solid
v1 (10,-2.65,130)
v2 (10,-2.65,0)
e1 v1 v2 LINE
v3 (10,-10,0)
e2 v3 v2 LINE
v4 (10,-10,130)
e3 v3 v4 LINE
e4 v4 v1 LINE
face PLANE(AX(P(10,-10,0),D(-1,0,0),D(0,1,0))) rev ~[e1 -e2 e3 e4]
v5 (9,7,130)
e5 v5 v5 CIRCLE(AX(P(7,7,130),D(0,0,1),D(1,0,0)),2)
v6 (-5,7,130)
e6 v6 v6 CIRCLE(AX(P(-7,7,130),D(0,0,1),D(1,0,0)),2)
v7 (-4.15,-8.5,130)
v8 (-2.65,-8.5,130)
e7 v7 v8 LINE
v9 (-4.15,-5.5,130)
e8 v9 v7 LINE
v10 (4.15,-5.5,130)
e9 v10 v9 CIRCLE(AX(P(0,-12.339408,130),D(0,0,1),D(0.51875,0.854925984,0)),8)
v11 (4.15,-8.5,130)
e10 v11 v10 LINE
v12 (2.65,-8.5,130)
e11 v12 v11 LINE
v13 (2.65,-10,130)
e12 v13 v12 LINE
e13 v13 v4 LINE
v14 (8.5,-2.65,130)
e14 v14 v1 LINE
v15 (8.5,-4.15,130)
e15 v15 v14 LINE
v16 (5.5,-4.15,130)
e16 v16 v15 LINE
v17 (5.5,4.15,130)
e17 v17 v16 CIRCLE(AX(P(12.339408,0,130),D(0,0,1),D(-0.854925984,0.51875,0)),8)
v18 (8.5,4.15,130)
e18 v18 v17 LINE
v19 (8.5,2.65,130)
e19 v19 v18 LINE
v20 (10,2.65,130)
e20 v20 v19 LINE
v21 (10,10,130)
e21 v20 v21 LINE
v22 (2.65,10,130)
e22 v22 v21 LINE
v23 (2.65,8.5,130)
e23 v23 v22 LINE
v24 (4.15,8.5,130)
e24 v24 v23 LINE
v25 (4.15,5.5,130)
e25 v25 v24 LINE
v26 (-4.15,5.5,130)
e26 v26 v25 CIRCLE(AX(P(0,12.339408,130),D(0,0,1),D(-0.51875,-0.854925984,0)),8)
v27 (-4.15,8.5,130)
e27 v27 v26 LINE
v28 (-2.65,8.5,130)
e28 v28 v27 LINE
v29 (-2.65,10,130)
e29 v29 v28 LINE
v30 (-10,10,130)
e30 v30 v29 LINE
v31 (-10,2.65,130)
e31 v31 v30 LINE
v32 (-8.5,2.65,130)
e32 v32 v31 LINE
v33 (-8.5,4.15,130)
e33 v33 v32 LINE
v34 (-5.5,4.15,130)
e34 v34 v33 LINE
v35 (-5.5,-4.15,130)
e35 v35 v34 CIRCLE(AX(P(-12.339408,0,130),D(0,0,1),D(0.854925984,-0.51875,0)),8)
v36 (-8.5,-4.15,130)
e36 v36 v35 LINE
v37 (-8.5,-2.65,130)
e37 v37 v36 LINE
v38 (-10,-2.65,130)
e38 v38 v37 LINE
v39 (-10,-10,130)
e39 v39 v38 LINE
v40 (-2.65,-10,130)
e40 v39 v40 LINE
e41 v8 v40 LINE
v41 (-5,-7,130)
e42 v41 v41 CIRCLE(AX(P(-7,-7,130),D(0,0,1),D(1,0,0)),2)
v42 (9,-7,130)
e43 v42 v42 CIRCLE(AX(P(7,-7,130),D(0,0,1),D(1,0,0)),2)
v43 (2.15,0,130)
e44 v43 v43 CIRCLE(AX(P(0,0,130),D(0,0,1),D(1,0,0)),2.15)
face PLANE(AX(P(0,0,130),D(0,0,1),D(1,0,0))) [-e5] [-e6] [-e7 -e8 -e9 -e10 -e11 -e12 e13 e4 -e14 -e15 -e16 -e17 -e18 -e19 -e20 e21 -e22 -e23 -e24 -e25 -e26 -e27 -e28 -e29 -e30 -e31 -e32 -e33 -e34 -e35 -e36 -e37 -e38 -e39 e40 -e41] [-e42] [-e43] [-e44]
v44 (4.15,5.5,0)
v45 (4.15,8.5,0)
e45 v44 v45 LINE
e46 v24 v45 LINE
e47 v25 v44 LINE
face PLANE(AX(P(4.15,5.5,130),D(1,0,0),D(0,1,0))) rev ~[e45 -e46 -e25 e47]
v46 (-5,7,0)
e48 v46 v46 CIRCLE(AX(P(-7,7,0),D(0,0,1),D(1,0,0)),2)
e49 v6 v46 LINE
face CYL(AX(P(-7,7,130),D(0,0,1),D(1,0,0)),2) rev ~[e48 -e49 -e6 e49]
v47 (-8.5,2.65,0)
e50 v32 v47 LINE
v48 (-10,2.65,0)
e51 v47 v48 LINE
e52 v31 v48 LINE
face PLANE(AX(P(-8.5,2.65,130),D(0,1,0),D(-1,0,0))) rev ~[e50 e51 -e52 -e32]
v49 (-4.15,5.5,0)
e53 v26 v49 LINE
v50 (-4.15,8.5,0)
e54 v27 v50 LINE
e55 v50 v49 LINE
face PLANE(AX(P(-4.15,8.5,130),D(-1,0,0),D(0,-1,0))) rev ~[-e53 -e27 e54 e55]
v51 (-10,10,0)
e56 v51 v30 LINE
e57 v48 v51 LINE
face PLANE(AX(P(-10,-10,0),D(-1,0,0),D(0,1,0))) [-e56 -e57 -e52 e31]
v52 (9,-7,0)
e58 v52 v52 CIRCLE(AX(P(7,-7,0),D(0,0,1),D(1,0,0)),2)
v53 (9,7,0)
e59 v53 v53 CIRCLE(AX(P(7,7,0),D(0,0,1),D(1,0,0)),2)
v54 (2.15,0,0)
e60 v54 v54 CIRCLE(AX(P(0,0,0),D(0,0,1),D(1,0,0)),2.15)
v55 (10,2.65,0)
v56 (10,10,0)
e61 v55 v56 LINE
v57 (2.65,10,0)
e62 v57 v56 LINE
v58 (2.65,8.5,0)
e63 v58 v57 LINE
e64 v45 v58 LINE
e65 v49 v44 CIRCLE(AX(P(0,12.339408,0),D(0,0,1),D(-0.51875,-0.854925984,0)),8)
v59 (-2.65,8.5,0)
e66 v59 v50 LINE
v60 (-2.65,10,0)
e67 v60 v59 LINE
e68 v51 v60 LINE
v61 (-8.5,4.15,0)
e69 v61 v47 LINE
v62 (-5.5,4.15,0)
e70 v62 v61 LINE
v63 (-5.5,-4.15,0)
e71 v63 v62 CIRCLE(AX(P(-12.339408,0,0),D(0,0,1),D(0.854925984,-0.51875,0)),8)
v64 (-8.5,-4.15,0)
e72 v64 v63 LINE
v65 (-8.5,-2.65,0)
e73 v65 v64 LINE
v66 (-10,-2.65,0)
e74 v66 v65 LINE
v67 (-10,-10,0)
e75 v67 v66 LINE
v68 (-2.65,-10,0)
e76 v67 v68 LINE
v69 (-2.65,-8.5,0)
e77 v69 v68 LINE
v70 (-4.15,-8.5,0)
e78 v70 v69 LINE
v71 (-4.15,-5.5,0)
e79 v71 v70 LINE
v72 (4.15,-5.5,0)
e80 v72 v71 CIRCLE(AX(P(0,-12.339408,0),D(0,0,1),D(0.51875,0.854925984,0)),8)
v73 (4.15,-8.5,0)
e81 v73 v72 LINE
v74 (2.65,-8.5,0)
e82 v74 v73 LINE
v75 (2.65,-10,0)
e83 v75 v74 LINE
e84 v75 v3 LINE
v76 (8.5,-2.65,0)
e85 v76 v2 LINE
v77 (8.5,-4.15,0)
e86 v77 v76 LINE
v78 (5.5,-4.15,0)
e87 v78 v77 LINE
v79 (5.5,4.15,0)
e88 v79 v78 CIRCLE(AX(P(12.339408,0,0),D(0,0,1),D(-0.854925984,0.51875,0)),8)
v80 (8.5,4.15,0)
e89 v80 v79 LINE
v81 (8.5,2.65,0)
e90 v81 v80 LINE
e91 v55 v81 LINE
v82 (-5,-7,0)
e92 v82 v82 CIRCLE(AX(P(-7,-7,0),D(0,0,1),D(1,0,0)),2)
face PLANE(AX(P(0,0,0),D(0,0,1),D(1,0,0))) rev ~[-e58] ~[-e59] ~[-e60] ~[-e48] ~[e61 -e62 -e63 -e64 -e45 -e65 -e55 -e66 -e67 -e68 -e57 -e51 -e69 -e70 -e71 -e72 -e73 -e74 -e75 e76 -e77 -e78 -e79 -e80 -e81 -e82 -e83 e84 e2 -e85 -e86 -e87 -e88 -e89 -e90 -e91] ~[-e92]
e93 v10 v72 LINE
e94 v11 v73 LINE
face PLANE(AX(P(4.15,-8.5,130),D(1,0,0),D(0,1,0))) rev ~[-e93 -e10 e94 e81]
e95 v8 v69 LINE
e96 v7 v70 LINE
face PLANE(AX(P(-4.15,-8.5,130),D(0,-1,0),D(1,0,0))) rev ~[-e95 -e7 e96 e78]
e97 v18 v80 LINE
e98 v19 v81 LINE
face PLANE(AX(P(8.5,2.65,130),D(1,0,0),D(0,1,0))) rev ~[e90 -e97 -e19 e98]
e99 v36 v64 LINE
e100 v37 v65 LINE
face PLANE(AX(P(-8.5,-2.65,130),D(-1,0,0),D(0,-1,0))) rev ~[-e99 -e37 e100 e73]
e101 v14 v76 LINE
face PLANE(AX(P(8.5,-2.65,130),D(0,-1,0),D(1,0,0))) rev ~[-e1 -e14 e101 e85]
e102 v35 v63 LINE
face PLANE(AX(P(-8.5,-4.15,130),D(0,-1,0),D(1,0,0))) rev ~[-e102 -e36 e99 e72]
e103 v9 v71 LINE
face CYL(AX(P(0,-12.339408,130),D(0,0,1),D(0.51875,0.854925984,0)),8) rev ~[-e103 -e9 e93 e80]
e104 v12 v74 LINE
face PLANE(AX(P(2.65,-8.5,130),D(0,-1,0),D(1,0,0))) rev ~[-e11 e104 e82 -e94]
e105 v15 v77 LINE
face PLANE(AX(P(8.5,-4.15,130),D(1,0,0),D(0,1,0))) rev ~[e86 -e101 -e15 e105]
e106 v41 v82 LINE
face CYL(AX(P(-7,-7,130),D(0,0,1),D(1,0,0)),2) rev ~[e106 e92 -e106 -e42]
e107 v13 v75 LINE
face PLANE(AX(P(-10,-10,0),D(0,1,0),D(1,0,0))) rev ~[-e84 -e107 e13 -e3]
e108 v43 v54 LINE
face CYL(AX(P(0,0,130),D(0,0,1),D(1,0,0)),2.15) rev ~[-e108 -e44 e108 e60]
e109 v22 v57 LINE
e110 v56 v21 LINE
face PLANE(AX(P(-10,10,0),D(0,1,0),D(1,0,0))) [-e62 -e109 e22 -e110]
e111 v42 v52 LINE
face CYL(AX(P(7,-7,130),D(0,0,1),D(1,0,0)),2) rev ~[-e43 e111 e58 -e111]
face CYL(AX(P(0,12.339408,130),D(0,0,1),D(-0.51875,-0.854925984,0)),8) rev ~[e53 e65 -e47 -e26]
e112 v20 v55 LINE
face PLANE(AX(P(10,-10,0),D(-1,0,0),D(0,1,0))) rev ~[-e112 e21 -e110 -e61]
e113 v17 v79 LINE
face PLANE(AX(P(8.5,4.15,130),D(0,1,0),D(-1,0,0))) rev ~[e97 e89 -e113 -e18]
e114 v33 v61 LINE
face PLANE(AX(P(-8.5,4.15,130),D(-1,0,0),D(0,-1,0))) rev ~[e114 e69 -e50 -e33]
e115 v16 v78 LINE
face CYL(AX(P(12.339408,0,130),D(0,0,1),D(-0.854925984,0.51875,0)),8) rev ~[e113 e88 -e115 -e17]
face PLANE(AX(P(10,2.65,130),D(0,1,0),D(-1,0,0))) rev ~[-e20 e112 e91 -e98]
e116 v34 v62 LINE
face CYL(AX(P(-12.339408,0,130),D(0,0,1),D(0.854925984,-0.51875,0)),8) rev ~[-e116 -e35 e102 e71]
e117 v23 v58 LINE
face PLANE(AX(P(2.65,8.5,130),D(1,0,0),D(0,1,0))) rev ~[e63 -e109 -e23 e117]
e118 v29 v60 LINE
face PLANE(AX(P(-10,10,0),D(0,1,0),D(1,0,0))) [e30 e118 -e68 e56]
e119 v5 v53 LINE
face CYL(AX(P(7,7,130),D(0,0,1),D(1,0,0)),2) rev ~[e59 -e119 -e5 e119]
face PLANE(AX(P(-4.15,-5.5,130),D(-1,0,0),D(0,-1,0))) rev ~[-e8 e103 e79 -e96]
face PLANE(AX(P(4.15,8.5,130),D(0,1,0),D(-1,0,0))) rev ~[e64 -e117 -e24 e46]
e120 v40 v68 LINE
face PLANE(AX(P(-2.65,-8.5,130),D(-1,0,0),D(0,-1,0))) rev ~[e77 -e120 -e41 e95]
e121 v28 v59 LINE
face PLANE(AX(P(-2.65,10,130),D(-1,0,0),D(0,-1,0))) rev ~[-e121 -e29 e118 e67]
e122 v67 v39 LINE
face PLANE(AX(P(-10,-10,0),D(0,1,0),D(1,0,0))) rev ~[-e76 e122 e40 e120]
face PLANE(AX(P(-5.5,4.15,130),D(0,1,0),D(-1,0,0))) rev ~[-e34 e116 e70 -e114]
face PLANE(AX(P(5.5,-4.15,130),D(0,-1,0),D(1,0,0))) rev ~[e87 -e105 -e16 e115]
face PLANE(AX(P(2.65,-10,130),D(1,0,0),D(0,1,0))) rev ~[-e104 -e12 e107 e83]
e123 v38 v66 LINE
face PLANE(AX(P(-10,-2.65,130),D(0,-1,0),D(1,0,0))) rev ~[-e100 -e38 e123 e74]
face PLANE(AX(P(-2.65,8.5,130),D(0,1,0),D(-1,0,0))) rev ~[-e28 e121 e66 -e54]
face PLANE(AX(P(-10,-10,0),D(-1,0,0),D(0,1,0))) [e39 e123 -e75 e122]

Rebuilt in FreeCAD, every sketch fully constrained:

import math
import FreeCAD as App
import Part
import Sketcher

V = App.Vector
Q = App.Units.Quantity


def add_polygon(sketch, points):
    """Adds a closed chain of lines whose ends are joined by coincident constraints."""
    first, n = sketch.GeometryCount, len(points)
    for a, b in zip(points, points[1:] + points[:1]):
        sketch.addGeometry(Part.LineSegment(App.Vector(*a, 0), App.Vector(*b, 0)), False)
    for i in range(n):
        sketch.addConstraint(Sketcher.Constraint("Coincident", first + i, 2, first + (i + 1) % n, 1))

doc = App.newDocument("Part")
body = doc.addObject("PartDesign::Body", "Body")

# Sketch on XY plane
sketch1 = body.newObject("Sketcher::SketchObject", "Sketch")
sketch1.AttachmentSupport = (doc.getObject("XY_Plane"), [""])
sketch1.MapMode = "FlatFace"
add_polygon(sketch1, [(-10, 10), (-10, -10), (10, -10), (10, 10)])  # lines 0-3
sketch1.addConstraint(Sketcher.Constraint("Vertical", 0))
sketch1.addConstraint(Sketcher.Constraint("Horizontal", 1))
sketch1.addConstraint(Sketcher.Constraint("Vertical", 2))
sketch1.addConstraint(Sketcher.Constraint("Horizontal", 3))
sketch1.addConstraint(Sketcher.Constraint("Symmetric", 0, 2, 2, 2, -1, 1))
sketch1.addConstraint(Sketcher.Constraint("Equal", 3, 0))
sketch1.addConstraint(Sketcher.Constraint("DistanceX", 1, 1, 1, 2, Q("20 mm")))
pad1 = body.newObject("PartDesign::Pad", "Pad")
pad1.Profile = sketch1
pad1.Length = 130

# Sketch on XY plane
sketch2 = body.newObject("Sketcher::SketchObject", "Sketch001")
sketch2.AttachmentSupport = (doc.getObject("XY_Plane"), [""])
sketch2.MapMode = "FlatFace"
sketch2.AttachmentOffset = App.Placement(V(0, 0, 130), App.Rotation())
sketch2.addGeometry(Part.Circle(V(0, 0, 0), V(0, 0, 1), 2.1), False)
sketch2.addGeometry(Part.Circle(V(-7, 7, 0), V(0, 0, 1), 2), False)
sketch2.addGeometry(Part.Circle(V(7, 7, 0), V(0, 0, 1), 2), False)
sketch2.addGeometry(Part.Circle(V(7, -7, 0), V(0, 0, 1), 2), False)
sketch2.addGeometry(Part.Circle(V(-7, -7, 0), V(0, 0, 1), 2), False)
sketch2.addGeometry(Part.LineSegment(V(-2.6, 10, 0), V(-2.6, 8.5, 0)), False)
sketch2.addGeometry(Part.LineSegment(V(-2.6, 8.5, 0), V(-4.2, 8.5, 0)), False)
sketch2.addGeometry(Part.LineSegment(V(-4.2, 8.5, 0), V(-4.2, 5.5, 0)), False)
sketch2.addGeometry(Part.ArcOfCircle(Part.Circle(V(0, 12.3, 0), V(0, 0, 1), 8), math.radians(-121), math.radians(-59)), False)
sketch2.addGeometry(Part.LineSegment(V(4.2, 5.5, 0), V(4.2, 8.5, 0)), False)
sketch2.addGeometry(Part.LineSegment(V(4.2, 8.5, 0), V(2.6, 8.5, 0)), False)
sketch2.addGeometry(Part.LineSegment(V(2.6, 8.5, 0), V(2.6, 10, 0)), False)
sketch2.addGeometry(Part.LineSegment(V(2.6, 10, 0), V(-2.6, 10, 0)), False)
sketch2.addGeometry(Part.LineSegment(V(10, 2.6, 0), V(8.5, 2.6, 0)), False)
sketch2.addGeometry(Part.LineSegment(V(8.5, 2.6, 0), V(8.5, 4.2, 0)), False)
sketch2.addGeometry(Part.LineSegment(V(8.5, 4.2, 0), V(5.5, 4.2, 0)), False)
sketch2.addGeometry(Part.ArcOfCircle(Part.Circle(V(12.3, 0, 0), V(0, 0, 1), 8), math.radians(149), math.radians(211)), False)
sketch2.addGeometry(Part.LineSegment(V(5.5, -4.2, 0), V(8.5, -4.2, 0)), False)
sketch2.addGeometry(Part.LineSegment(V(8.5, -4.2, 0), V(8.5, -2.6, 0)), False)
sketch2.addGeometry(Part.LineSegment(V(8.5, -2.6, 0), V(10, -2.6, 0)), False)
sketch2.addGeometry(Part.LineSegment(V(10, -2.6, 0), V(10, 2.6, 0)), False)
sketch2.addGeometry(Part.LineSegment(V(2.6, -10, 0), V(2.6, -8.5, 0)), False)
sketch2.addGeometry(Part.LineSegment(V(2.6, -8.5, 0), V(4.2, -8.5, 0)), False)
sketch2.addGeometry(Part.LineSegment(V(4.2, -8.5, 0), V(4.2, -5.5, 0)), False)
sketch2.addGeometry(Part.ArcOfCircle(Part.Circle(V(0, -12.3, 0), V(0, 0, 1), 8), math.radians(59), math.radians(121)), False)
sketch2.addGeometry(Part.LineSegment(V(-4.2, -5.5, 0), V(-4.2, -8.5, 0)), False)
sketch2.addGeometry(Part.LineSegment(V(-4.2, -8.5, 0), V(-2.6, -8.5, 0)), False)
sketch2.addGeometry(Part.LineSegment(V(-2.6, -8.5, 0), V(-2.6, -10, 0)), False)
sketch2.addGeometry(Part.LineSegment(V(-2.6, -10, 0), V(2.6, -10, 0)), False)
sketch2.addGeometry(Part.LineSegment(V(-10, -2.6, 0), V(-8.5, -2.6, 0)), False)
sketch2.addGeometry(Part.LineSegment(V(-8.5, -2.6, 0), V(-8.5, -4.2, 0)), False)
sketch2.addGeometry(Part.LineSegment(V(-8.5, -4.2, 0), V(-5.5, -4.2, 0)), False)
sketch2.addGeometry(Part.ArcOfCircle(Part.Circle(V(-12.3, 0, 0), V(0, 0, 1), 8), math.radians(-31), math.radians(31)), False)
sketch2.addGeometry(Part.LineSegment(V(-5.5, 4.2, 0), V(-8.5, 4.2, 0)), False)
sketch2.addGeometry(Part.LineSegment(V(-8.5, 4.2, 0), V(-8.5, 2.6, 0)), False)
sketch2.addGeometry(Part.LineSegment(V(-8.5, 2.6, 0), V(-10, 2.6, 0)), False)
sketch2.addGeometry(Part.LineSegment(V(-10, 2.6, 0), V(-10, -2.6, 0)), False)
sketch2.addConstraint(Sketcher.Constraint("Coincident", 5, 2, 6, 1))
sketch2.addConstraint(Sketcher.Constraint("Coincident", 6, 2, 7, 1))
sketch2.addConstraint(Sketcher.Constraint("Coincident", 7, 2, 8, 1))
sketch2.addConstraint(Sketcher.Constraint("Coincident", 8, 2, 9, 1))
sketch2.addConstraint(Sketcher.Constraint("Coincident", 9, 2, 10, 1))
sketch2.addConstraint(Sketcher.Constraint("Coincident", 10, 2, 11, 1))
sketch2.addConstraint(Sketcher.Constraint("Coincident", 11, 2, 12, 1))
sketch2.addConstraint(Sketcher.Constraint("Coincident", 12, 2, 5, 1))
sketch2.addConstraint(Sketcher.Constraint("Coincident", 13, 2, 14, 1))
sketch2.addConstraint(Sketcher.Constraint("Coincident", 14, 2, 15, 1))
sketch2.addConstraint(Sketcher.Constraint("Coincident", 15, 2, 16, 1))
sketch2.addConstraint(Sketcher.Constraint("Coincident", 16, 2, 17, 1))
sketch2.addConstraint(Sketcher.Constraint("Coincident", 17, 2, 18, 1))
sketch2.addConstraint(Sketcher.Constraint("Coincident", 18, 2, 19, 1))
sketch2.addConstraint(Sketcher.Constraint("Coincident", 19, 2, 20, 1))
sketch2.addConstraint(Sketcher.Constraint("Coincident", 20, 2, 13, 1))
sketch2.addConstraint(Sketcher.Constraint("Coincident", 21, 2, 22, 1))
sketch2.addConstraint(Sketcher.Constraint("Coincident", 22, 2, 23, 1))
sketch2.addConstraint(Sketcher.Constraint("Coincident", 23, 2, 24, 1))
sketch2.addConstraint(Sketcher.Constraint("Coincident", 24, 2, 25, 1))
sketch2.addConstraint(Sketcher.Constraint("Coincident", 25, 2, 26, 1))
sketch2.addConstraint(Sketcher.Constraint("Coincident", 26, 2, 27, 1))
sketch2.addConstraint(Sketcher.Constraint("Coincident", 27, 2, 28, 1))
sketch2.addConstraint(Sketcher.Constraint("Coincident", 28, 2, 21, 1))
sketch2.addConstraint(Sketcher.Constraint("Coincident", 29, 2, 30, 1))
sketch2.addConstraint(Sketcher.Constraint("Coincident", 30, 2, 31, 1))
sketch2.addConstraint(Sketcher.Constraint("Coincident", 31, 2, 32, 1))
sketch2.addConstraint(Sketcher.Constraint("Coincident", 32, 2, 33, 1))
sketch2.addConstraint(Sketcher.Constraint("Coincident", 33, 2, 34, 1))
sketch2.addConstraint(Sketcher.Constraint("Coincident", 34, 2, 35, 1))
sketch2.addConstraint(Sketcher.Constraint("Coincident", 35, 2, 36, 1))
sketch2.addConstraint(Sketcher.Constraint("Coincident", 36, 2, 29, 1))
sketch2.addConstraint(Sketcher.Constraint("Vertical", 5))
sketch2.addConstraint(Sketcher.Constraint("Horizontal", 6))
sketch2.addConstraint(Sketcher.Constraint("Vertical", 7))
sketch2.addConstraint(Sketcher.Constraint("Vertical", 9))
sketch2.addConstraint(Sketcher.Constraint("Horizontal", 10))
sketch2.addConstraint(Sketcher.Constraint("Vertical", 11))
sketch2.addConstraint(Sketcher.Constraint("Horizontal", 12))
sketch2.addConstraint(Sketcher.Constraint("Horizontal", 13))
sketch2.addConstraint(Sketcher.Constraint("Vertical", 14))
sketch2.addConstraint(Sketcher.Constraint("Horizontal", 15))
sketch2.addConstraint(Sketcher.Constraint("Horizontal", 17))
sketch2.addConstraint(Sketcher.Constraint("Vertical", 18))
sketch2.addConstraint(Sketcher.Constraint("Horizontal", 19))
sketch2.addConstraint(Sketcher.Constraint("Vertical", 20))
sketch2.addConstraint(Sketcher.Constraint("Vertical", 21))
sketch2.addConstraint(Sketcher.Constraint("Horizontal", 22))
sketch2.addConstraint(Sketcher.Constraint("Vertical", 23))
sketch2.addConstraint(Sketcher.Constraint("Vertical", 25))
sketch2.addConstraint(Sketcher.Constraint("Horizontal", 26))
sketch2.addConstraint(Sketcher.Constraint("Vertical", 27))
sketch2.addConstraint(Sketcher.Constraint("Horizontal", 28))
sketch2.addConstraint(Sketcher.Constraint("Horizontal", 29))
sketch2.addConstraint(Sketcher.Constraint("Vertical", 30))
sketch2.addConstraint(Sketcher.Constraint("Horizontal", 31))
sketch2.addConstraint(Sketcher.Constraint("Horizontal", 33))
sketch2.addConstraint(Sketcher.Constraint("Vertical", 34))
sketch2.addConstraint(Sketcher.Constraint("Horizontal", 35))
sketch2.addConstraint(Sketcher.Constraint("Vertical", 36))
sketch2.addConstraint(Sketcher.Constraint("Coincident", 0, 3, -1, 1))
sketch2.addConstraint(Sketcher.Constraint("Equal", 1, 2))
sketch2.addConstraint(Sketcher.Constraint("Equal", 2, 3))
sketch2.addConstraint(Sketcher.Constraint("Equal", 3, 4))
sketch2.addConstraint(Sketcher.Constraint("Equal", 8, 16))
sketch2.addConstraint(Sketcher.Constraint("Equal", 16, 24))
sketch2.addConstraint(Sketcher.Constraint("Equal", 24, 32))
sketch2.addConstraint(Sketcher.Constraint("Symmetric", 1, 3, 3, 3, -1, 1))
sketch2.addConstraint(Sketcher.Constraint("Symmetric", 2, 3, 4, 3, -1, 1))
sketch2.addConstraint(Sketcher.Constraint("Symmetric", 8, 3, 24, 3, -1, 1))
sketch2.addConstraint(Sketcher.Constraint("Symmetric", 16, 3, 32, 3, -1, 1))
sketch2.addConstraint(Sketcher.Constraint("Symmetric", 5, 2, 21, 2, -1, 1))
sketch2.addConstraint(Sketcher.Constraint("Symmetric", 9, 2, 25, 2, -1, 1))
sketch2.addConstraint(Sketcher.Constraint("Symmetric", 11, 2, 27, 2, -1, 1))
sketch2.addConstraint(Sketcher.Constraint("Symmetric", 13, 2, 29, 2, -1, 1))
sketch2.addConstraint(Sketcher.Constraint("Symmetric", 17, 2, 33, 2, -1, 1))
sketch2.addConstraint(Sketcher.Constraint("Symmetric", 19, 2, 35, 2, -1, 1))
sketch2.addConstraint(Sketcher.Constraint("Symmetric", 1, 3, 2, 3, -2))
sketch2.addConstraint(Sketcher.Constraint("Symmetric", 7, 2, 8, 2, -2))
sketch2.addConstraint(Sketcher.Constraint("Symmetric", 5, 2, 10, 2, -2))
sketch2.addConstraint(Sketcher.Constraint("Symmetric", 18, 2, 29, 2, -2))
sketch2.addConstraint(Sketcher.Constraint("Symmetric", 16, 2, 31, 2, -2))
sketch2.addConstraint(Sketcher.Constraint("Horizontal", 23, 2, 24, 2))
sketch2.addConstraint(Sketcher.Constraint("Horizontal", 15, 2, 32, 2))
sketch2.addConstraint(Sketcher.Constraint("Equal", 10, 13))
sketch2.addConstraint(Sketcher.Constraint("Equal", 35, 5))
sketch2.addConstraint(Sketcher.Constraint("Equal", 33, 7))
sketch2.addConstraint(Sketcher.Constraint("Equal", 11, 14))
sketch2.addConstraint(Sketcher.Constraint("Equal", 28, 20))
sketch2.addConstraint(Sketcher.Constraint("Diameter", 1, Q("4 mm")))
sketch2.addConstraint(Sketcher.Constraint("Radius", 8, Q("8 mm")))
sketch2.addConstraint(Sketcher.Constraint("Diameter", 0, Q("4.3 mm")))
sketch2.addConstraint(Sketcher.Constraint("DistanceX", 15, 2, 15, 1, Q("3 mm")))
sketch2.addConstraint(Sketcher.Constraint("DistanceX", 6, 2, 6, 1, Q("1.5 mm")))
sketch2.addConstraint(Sketcher.Constraint("DistanceX", 12, 2, 12, 1, Q("5.3 mm")))
sketch2.addConstraint(Sketcher.Constraint("DistanceX", 1, 3, -1, 1, Q("7 mm")))
sketch2.addConstraint(Sketcher.Constraint("DistanceY", -1, 1, 1, 3, Q("7 mm")))
sketch2.addConstraint(Sketcher.Constraint("DistanceY", -1, 1, 11, 2, Q("10 mm")))
sketch2.addConstraint(Sketcher.Constraint("DistanceX", -1, 1, 19, 2, Q("10 mm")))
pocket1 = body.newObject("PartDesign::Pocket", "Pocket")
pocket1.Profile = sketch2
pocket1.Length = 300

doc.recompute()
